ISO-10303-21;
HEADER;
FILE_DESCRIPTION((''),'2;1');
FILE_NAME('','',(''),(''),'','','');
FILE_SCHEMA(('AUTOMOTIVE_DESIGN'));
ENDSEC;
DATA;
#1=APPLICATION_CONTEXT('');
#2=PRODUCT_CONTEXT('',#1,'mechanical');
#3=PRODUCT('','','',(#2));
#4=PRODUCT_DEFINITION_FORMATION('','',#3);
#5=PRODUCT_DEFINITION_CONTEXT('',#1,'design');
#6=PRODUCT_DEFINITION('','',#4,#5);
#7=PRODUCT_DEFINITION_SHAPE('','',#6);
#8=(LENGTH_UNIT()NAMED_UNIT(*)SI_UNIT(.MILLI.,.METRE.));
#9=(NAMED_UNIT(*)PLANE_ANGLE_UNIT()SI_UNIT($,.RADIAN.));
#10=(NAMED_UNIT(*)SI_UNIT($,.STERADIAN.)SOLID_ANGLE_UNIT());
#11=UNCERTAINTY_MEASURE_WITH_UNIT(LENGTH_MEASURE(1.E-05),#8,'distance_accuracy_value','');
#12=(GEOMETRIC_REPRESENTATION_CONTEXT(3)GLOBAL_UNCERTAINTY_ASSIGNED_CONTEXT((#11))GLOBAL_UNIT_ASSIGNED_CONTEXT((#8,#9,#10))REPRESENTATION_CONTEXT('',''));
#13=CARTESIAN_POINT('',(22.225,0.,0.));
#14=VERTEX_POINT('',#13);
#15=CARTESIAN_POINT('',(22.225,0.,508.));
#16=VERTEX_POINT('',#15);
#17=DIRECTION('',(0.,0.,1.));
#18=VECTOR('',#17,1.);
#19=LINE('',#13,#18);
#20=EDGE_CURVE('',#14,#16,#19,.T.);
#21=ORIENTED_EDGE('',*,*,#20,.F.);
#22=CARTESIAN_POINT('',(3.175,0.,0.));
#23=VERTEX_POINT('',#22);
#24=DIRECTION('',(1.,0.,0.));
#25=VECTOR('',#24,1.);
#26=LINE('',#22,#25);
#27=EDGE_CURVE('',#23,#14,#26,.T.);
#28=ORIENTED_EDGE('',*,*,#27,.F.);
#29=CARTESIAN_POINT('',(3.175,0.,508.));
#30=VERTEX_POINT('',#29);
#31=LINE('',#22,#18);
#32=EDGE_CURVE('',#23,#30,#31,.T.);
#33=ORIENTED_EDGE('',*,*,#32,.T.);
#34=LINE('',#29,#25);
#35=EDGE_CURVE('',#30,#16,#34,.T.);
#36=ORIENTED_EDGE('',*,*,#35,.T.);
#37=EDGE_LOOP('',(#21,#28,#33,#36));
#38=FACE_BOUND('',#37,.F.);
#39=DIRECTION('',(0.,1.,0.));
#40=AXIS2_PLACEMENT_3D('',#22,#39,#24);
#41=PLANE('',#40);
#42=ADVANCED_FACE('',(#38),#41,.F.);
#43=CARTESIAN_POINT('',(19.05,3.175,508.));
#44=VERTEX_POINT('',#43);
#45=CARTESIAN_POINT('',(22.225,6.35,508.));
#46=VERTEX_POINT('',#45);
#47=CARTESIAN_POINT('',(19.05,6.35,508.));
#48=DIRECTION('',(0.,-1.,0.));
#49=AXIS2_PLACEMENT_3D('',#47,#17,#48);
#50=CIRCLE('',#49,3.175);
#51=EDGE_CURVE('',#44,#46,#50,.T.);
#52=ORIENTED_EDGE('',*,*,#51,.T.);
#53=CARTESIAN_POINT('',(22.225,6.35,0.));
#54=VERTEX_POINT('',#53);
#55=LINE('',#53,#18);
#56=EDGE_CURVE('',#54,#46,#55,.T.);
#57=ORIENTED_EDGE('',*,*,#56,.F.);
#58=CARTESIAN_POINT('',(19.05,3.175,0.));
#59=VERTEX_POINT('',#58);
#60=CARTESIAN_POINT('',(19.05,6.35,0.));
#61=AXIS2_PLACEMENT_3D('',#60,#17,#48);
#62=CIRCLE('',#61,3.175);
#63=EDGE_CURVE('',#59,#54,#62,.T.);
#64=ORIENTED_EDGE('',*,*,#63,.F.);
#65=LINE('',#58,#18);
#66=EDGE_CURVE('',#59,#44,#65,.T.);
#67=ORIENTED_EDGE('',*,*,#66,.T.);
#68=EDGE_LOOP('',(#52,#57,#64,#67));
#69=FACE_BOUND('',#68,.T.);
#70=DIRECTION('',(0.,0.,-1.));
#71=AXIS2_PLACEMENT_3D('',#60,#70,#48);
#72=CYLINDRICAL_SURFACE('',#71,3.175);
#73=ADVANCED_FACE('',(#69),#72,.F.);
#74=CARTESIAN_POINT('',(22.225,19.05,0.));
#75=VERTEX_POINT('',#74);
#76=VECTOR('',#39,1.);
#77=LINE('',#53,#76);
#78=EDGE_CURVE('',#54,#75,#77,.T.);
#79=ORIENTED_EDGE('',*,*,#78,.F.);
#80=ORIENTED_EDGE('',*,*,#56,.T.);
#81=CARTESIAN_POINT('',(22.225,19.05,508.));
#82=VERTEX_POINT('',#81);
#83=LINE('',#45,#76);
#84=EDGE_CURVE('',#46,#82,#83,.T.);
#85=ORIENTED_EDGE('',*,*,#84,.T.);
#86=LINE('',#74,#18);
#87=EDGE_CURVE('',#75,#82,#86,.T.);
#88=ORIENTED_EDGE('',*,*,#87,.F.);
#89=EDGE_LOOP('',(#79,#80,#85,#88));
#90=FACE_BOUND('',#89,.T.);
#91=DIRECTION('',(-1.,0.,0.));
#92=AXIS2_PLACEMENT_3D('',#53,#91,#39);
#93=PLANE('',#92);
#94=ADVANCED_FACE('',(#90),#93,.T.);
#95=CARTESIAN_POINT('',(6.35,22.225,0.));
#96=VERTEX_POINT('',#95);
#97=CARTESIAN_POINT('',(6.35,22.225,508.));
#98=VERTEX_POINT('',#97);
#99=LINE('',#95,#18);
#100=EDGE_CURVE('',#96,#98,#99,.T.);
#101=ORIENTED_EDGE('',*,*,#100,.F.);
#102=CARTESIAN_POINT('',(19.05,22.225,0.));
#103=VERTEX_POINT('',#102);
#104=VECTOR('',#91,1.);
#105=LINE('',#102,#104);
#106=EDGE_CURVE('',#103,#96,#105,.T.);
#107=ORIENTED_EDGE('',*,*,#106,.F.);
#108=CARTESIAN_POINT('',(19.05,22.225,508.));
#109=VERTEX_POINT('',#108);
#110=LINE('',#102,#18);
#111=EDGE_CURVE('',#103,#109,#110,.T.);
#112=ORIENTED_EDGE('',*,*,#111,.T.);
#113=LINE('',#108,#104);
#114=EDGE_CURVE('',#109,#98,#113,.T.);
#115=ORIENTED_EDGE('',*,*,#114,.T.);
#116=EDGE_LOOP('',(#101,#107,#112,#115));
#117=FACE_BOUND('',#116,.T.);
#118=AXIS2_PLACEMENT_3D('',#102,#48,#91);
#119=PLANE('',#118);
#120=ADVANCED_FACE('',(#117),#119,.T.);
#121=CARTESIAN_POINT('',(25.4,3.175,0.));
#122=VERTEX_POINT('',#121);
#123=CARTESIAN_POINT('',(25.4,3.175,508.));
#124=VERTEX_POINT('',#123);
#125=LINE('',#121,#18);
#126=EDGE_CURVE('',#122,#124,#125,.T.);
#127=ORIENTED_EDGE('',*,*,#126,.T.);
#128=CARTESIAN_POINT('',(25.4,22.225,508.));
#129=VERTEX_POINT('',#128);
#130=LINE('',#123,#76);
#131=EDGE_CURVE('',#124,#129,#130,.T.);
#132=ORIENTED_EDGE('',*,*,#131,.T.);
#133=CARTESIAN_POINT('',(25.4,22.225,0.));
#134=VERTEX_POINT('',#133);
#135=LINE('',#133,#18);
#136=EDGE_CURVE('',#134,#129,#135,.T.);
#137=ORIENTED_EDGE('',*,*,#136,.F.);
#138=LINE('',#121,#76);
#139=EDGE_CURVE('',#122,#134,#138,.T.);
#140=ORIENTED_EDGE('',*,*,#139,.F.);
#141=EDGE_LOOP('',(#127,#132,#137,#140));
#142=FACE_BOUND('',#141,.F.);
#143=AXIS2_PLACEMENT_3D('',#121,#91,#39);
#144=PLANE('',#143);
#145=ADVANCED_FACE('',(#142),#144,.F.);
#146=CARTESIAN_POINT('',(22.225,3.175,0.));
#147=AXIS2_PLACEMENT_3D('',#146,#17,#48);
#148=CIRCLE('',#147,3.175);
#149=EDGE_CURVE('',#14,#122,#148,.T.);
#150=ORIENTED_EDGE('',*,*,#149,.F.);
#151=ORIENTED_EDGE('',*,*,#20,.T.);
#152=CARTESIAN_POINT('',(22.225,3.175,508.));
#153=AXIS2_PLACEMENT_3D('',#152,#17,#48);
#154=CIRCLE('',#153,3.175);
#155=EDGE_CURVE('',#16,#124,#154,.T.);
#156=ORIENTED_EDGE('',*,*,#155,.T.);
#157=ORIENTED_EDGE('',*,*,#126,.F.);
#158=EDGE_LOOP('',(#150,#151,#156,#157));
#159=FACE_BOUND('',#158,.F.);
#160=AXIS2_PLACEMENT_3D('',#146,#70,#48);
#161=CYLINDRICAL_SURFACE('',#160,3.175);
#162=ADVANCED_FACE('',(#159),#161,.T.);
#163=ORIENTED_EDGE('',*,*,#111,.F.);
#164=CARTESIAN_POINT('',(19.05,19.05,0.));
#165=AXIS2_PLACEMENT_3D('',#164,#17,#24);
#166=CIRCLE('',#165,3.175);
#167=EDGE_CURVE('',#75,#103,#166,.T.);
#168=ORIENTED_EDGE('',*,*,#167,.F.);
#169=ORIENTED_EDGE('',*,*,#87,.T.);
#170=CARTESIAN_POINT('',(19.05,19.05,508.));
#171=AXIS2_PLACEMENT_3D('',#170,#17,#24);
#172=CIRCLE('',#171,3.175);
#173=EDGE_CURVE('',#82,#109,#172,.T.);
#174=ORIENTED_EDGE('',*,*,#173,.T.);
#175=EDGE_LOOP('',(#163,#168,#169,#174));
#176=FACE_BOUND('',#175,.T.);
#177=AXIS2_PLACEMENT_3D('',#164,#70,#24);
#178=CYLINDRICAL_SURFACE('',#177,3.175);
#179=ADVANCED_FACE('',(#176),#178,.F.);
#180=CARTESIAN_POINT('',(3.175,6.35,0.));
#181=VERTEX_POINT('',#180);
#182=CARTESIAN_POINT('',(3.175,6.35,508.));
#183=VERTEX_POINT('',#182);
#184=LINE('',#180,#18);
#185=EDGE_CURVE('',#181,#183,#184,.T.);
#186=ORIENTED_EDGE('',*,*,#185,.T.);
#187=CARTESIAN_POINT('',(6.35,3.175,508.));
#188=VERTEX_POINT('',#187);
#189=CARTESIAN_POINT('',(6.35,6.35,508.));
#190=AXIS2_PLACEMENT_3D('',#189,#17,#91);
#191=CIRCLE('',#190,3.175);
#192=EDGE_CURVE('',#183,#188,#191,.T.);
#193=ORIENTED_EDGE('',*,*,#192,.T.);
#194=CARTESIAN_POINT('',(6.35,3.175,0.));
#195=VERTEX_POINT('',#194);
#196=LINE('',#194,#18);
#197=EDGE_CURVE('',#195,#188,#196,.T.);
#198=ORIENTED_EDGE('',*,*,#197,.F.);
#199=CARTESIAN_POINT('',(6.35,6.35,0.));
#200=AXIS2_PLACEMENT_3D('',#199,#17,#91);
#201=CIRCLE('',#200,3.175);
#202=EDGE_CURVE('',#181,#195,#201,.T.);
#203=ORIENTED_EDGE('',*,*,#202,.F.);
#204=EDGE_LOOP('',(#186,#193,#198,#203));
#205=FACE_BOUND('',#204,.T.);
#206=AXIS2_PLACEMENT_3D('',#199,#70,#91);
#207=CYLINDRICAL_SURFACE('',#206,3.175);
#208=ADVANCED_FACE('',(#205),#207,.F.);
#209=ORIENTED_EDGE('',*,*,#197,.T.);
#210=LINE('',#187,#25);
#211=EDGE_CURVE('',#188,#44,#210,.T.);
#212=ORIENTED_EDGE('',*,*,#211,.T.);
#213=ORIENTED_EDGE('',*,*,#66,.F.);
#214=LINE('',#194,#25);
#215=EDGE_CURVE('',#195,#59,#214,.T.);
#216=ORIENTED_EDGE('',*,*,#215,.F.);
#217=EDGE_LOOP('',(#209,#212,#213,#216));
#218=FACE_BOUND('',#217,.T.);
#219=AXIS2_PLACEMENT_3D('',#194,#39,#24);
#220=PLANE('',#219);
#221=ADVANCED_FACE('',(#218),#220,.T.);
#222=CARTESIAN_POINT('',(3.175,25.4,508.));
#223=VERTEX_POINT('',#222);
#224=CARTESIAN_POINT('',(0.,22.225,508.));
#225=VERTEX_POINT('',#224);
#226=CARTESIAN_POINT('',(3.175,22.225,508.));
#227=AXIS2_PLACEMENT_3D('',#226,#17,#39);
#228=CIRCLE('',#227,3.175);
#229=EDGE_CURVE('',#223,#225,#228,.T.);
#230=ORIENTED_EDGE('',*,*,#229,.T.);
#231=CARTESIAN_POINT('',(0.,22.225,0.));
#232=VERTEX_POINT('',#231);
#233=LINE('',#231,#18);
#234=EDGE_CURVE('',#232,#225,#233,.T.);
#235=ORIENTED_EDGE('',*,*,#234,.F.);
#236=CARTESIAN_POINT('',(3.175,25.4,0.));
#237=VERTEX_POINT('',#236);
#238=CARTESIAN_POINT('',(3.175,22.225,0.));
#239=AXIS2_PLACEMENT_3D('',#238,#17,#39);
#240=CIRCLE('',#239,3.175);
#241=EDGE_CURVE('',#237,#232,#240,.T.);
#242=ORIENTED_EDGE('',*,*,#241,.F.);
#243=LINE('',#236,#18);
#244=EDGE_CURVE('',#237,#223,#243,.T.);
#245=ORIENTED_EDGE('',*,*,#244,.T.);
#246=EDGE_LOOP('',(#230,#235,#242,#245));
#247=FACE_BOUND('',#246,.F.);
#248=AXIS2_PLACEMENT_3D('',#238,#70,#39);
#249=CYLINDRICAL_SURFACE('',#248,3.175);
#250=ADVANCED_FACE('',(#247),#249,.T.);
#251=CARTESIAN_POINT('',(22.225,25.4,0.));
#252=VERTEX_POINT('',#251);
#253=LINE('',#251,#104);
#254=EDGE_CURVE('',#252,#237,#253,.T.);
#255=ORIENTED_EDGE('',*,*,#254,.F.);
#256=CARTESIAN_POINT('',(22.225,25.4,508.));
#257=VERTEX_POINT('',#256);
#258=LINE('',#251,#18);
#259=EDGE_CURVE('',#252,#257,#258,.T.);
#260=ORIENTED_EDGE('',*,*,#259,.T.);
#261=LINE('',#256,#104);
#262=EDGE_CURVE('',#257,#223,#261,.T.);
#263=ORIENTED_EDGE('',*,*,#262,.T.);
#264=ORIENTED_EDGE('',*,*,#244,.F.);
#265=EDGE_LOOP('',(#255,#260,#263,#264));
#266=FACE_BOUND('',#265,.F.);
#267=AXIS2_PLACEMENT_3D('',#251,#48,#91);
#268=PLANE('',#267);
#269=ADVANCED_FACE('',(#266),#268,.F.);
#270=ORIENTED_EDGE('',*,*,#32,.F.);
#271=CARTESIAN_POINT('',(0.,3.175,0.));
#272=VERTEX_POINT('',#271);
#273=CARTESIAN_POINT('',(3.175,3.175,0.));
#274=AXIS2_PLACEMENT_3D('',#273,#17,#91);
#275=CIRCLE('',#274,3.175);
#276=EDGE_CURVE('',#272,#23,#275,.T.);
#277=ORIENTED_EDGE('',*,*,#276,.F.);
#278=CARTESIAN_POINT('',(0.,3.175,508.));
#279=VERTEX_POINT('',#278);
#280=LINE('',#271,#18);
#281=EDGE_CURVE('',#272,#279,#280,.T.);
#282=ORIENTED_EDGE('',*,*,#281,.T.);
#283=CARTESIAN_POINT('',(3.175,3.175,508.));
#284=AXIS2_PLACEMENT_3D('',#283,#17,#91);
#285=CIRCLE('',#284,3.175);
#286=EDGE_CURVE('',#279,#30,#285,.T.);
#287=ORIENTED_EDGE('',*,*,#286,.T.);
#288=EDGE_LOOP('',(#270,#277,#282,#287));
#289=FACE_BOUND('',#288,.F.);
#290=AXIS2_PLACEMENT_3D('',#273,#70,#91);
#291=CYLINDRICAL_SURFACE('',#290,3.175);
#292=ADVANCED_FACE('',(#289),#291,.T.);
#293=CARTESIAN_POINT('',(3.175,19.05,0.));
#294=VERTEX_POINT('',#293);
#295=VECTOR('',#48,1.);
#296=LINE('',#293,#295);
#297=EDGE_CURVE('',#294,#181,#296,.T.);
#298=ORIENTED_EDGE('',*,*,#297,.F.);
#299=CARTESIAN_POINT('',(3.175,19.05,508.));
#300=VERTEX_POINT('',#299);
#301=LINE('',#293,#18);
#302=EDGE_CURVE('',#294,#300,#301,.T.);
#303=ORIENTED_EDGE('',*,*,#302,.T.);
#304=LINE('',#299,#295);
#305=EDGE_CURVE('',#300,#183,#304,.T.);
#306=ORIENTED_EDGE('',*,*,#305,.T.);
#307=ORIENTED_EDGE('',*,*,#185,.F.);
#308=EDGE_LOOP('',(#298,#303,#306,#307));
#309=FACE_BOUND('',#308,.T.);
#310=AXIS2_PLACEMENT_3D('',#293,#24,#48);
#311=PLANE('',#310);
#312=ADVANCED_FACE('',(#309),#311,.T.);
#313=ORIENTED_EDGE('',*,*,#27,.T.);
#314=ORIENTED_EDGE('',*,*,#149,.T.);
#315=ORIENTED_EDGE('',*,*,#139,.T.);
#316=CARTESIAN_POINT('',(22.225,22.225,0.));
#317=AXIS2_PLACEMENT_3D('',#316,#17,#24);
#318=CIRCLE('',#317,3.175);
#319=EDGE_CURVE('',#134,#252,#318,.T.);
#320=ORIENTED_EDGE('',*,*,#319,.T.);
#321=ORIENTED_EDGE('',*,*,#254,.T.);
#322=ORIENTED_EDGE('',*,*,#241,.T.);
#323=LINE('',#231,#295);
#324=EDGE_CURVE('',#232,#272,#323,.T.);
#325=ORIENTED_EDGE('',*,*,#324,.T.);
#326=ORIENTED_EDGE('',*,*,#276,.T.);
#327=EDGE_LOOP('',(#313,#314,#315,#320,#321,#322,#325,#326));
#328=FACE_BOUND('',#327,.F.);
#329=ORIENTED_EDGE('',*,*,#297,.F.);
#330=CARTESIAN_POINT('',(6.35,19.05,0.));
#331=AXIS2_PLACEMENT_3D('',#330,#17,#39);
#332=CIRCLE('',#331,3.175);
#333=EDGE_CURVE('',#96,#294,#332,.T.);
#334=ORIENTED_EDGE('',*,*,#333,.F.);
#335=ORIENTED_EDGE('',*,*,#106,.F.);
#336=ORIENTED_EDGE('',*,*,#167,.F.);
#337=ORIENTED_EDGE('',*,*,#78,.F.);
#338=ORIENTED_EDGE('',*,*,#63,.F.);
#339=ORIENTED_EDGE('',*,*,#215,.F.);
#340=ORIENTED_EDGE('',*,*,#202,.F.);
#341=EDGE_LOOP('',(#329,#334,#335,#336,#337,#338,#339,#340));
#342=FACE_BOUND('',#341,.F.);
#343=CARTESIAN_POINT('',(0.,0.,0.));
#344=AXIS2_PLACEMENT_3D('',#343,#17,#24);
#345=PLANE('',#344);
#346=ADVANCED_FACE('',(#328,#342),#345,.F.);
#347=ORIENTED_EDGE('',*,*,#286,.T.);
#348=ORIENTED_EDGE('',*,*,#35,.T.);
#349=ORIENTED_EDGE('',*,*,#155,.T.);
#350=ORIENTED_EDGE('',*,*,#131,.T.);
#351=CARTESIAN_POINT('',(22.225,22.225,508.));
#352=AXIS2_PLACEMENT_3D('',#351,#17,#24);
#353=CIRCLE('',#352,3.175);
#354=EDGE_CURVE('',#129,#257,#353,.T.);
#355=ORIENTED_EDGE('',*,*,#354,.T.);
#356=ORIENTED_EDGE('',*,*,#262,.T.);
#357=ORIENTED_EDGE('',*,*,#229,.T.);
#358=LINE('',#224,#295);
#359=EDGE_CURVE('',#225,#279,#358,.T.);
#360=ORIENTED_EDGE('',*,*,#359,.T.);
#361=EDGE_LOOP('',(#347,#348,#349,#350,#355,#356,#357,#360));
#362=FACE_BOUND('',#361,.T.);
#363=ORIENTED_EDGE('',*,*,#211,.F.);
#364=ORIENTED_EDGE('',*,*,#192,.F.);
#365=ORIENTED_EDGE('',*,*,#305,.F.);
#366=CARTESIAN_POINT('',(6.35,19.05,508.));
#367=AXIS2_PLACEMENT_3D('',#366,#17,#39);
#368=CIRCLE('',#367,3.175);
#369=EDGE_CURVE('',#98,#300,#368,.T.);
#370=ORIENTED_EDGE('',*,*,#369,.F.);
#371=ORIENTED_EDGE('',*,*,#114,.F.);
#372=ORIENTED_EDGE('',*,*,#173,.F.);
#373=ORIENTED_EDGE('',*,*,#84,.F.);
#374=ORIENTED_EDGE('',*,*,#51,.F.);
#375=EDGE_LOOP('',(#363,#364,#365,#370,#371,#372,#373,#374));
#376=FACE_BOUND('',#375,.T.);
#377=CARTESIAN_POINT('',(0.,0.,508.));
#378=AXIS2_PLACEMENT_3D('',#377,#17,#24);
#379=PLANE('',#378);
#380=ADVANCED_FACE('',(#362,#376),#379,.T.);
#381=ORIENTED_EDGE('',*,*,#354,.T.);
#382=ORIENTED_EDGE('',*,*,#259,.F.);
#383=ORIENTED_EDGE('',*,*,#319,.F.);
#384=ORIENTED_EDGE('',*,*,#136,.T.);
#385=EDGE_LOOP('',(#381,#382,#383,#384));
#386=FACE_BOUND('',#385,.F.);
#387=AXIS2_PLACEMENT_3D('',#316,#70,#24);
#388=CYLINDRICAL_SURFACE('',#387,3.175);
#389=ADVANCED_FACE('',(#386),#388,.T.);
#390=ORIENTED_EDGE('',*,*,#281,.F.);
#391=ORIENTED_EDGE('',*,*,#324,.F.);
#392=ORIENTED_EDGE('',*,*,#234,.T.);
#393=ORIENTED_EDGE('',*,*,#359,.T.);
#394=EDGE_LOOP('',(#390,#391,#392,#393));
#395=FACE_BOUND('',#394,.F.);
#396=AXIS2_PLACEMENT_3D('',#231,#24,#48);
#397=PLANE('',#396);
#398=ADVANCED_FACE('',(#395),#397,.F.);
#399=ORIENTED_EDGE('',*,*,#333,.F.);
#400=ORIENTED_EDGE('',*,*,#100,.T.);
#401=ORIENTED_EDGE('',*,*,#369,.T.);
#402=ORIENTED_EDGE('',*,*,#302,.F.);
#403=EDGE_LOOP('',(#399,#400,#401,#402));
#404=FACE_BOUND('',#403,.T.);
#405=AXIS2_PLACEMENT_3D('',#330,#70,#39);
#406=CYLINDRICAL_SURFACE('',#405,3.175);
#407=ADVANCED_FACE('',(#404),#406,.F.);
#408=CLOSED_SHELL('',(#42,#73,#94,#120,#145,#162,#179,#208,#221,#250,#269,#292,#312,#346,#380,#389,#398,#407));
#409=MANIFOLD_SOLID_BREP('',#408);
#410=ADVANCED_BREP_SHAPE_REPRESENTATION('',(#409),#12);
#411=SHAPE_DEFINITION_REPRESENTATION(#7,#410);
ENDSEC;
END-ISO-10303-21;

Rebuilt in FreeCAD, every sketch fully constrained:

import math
import FreeCAD as App
import Part
import Sketcher
from FreeCAD import Vector
Q = App.Units.Quantity

doc = App.newDocument("Part")
body = doc.addObject("PartDesign::Body", "Body")

# Sketch on XY plane
sketch1 = doc.addObject("Sketcher::SketchObject", "Sketch")
body.addObject(sketch1)
sketch1.AttachmentSupport = (doc.XY_Plane, [""])
sketch1.MapMode = "FlatFace"
sketch1.addGeometry([
    Part.ArcOfCircle(Part.Circle(Vector(3.2, 3.2, 0), Vector(0, 0, 1), 3.2), math.radians(180), math.radians(270)),  # 0
    Part.LineSegment(Vector(3.2, 0, 0), Vector(22.2, 0, 0)),  # 1
    Part.ArcOfCircle(Part.Circle(Vector(22.2, 3.2, 0), Vector(0, 0, 1), 3.2), math.radians(-90), math.radians(0)),  # 2
    Part.LineSegment(Vector(25.4, 3.2, 0), Vector(25.4, 22.2, 0)),  # 3
    Part.ArcOfCircle(Part.Circle(Vector(22.2, 22.2, 0), Vector(0, 0, 1), 3.2), math.radians(0), math.radians(90)),  # 4
    Part.LineSegment(Vector(22.2, 25.4, 0), Vector(3.2, 25.4, 0)),  # 5
    Part.ArcOfCircle(Part.Circle(Vector(3.2, 22.2, 0), Vector(0, 0, 1), 3.2), math.radians(90), math.radians(180)),  # 6
    Part.LineSegment(Vector(0, 22.2, 0), Vector(0, 3.2, 0)),  # 7
    Part.LineSegment(Vector(19.1, 3.2, 0), Vector(6.3, 3.2, 0)),  # 8
    Part.ArcOfCircle(Part.Circle(Vector(6.3, 6.3, 0), Vector(0, 0, 1), 3.2), math.radians(180), math.radians(270)),  # 9
    Part.LineSegment(Vector(3.2, 6.3, 0), Vector(3.2, 19.1, 0)),  # 10
    Part.ArcOfCircle(Part.Circle(Vector(6.3, 19.1, 0), Vector(0, 0, 1), 3.2), math.radians(90), math.radians(180)),  # 11
    Part.LineSegment(Vector(6.3, 22.2, 0), Vector(19.1, 22.2, 0)),  # 12
    Part.ArcOfCircle(Part.Circle(Vector(19.1, 19.1, 0), Vector(0, 0, 1), 3.2), math.radians(0), math.radians(90)),  # 13
    Part.LineSegment(Vector(22.2, 19.1, 0), Vector(22.2, 6.3, 0)),  # 14
    Part.ArcOfCircle(Part.Circle(Vector(19.1, 6.3, 0), Vector(0, 0, 1), 3.2), math.radians(-90), math.radians(0)),  # 15
], False)
sketch1.addConstraint([
    Sketcher.Constraint("Tangent", 0, 2, 1, 1),
    Sketcher.Constraint("Tangent", 1, 2, 2, 1),
    Sketcher.Constraint("Tangent", 2, 2, 3, 1),
    Sketcher.Constraint("Tangent", 3, 2, 4, 1),
    Sketcher.Constraint("Tangent", 4, 2, 5, 1),
    Sketcher.Constraint("Tangent", 5, 2, 6, 1),
    Sketcher.Constraint("Tangent", 6, 2, 7, 1),
    Sketcher.Constraint("Tangent", 7, 2, 0, 1),
    Sketcher.Constraint("Tangent", 8, 2, 9, 2),
    Sketcher.Constraint("Tangent", 9, 1, 10, 1),
    Sketcher.Constraint("Tangent", 10, 2, 11, 2),
    Sketcher.Constraint("Tangent", 11, 1, 12, 1),
    Sketcher.Constraint("Tangent", 12, 2, 13, 2),
    Sketcher.Constraint("Tangent", 13, 1, 14, 1),
    Sketcher.Constraint("Tangent", 14, 2, 15, 2),
    Sketcher.Constraint("Tangent", 15, 1, 8, 1),
    Sketcher.Constraint("Horizontal", 1),
    Sketcher.Constraint("Vertical", 3),
    Sketcher.Constraint("Horizontal", 5),
    Sketcher.Constraint("Vertical", 7),
    Sketcher.Constraint("Horizontal", 8),
    Sketcher.Constraint("Vertical", 10),
    Sketcher.Constraint("Horizontal", 12),
    Sketcher.Constraint("Vertical", 14),
    Sketcher.Constraint("Equal", 0, 2),
    Sketcher.Constraint("Equal", 2, 4),
    Sketcher.Constraint("Equal", 4, 6),
    Sketcher.Constraint("Equal", 6, 9),
    Sketcher.Constraint("Equal", 9, 11),
    Sketcher.Constraint("Equal", 11, 13),
    Sketcher.Constraint("Equal", 13, 15),
    Sketcher.Constraint("PointOnObject", 0, 2, -1),
    Sketcher.Constraint("PointOnObject", 6, 2, -2),
    Sketcher.Constraint("Horizontal", 7, 2, 8, 2),
    Sketcher.Constraint("Horizontal", 6, 2, 11, 1),
    Sketcher.Constraint("Vertical", 5, 2, 9, 1),
    Sketcher.Constraint("Vertical", 4, 2, 13, 1),
    Sketcher.Constraint("Equal", 5, 3),
    Sketcher.Constraint("DistanceX", -1, 1, 2, 2, Q("1 in")),
    Sketcher.Constraint("Radius", 0, Q("0.125 in")),
])
pad1 = doc.addObject("PartDesign::Pad", "Pad")
body.addObject(pad1)
pad1.Profile = sketch1
pad1.Length = Q("20 in")

doc.recompute()
